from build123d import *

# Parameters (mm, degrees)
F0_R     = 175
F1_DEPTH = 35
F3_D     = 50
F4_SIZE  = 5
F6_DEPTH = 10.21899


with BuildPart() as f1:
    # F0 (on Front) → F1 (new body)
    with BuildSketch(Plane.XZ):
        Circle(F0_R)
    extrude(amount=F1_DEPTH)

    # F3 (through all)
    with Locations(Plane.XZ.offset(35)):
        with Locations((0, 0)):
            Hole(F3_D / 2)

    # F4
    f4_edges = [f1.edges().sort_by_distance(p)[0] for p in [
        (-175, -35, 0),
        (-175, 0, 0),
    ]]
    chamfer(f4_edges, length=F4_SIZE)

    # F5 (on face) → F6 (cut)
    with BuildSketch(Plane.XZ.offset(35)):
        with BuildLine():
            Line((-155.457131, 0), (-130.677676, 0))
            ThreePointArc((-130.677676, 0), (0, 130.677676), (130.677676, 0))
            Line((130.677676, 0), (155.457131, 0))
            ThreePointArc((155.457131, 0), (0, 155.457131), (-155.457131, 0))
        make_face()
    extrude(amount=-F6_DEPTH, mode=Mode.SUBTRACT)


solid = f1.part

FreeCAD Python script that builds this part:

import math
import FreeCAD as App
import Part
import Sketcher

V = App.Vector


def edges_at(feature, points):
    """Names of the edges that pass closest to the given points."""
    edges = feature.Shape.Edges
    near = lambda p: min(range(len(edges)), key=lambda i: edges[i].distToShape(Part.Vertex(*p))[0])
    return sorted({f"Edge{near(p) + 1}" for p in points})

doc = App.newDocument("Part")
body = doc.addObject("PartDesign::Body", "Body")

# Sketch on XZ plane
sketch1 = doc.addObject("Sketcher::SketchObject", "Sketch")
body.addObject(sketch1)
sketch1.AttachmentSupport = (doc.XZ_Plane, [""])
sketch1.MapMode = "FlatFace"
sketch1.addGeometry(Part.Circle(V(0, 0, 0), V(0, 0, 1), 175), False)
sketch1.addConstraint([
    Sketcher.Constraint("Coincident", 0, 3, -1, 1),
    Sketcher.Constraint("Diameter", 0, 350.0),
])
pad1 = doc.addObject("PartDesign::Pad", "Pad")
body.addObject(pad1)
pad1.Profile = sketch1
pad1.Length = 35

# Sketch on XZ plane
sketch2 = doc.addObject("Sketcher::SketchObject", "Sketch001")
body.addObject(sketch2)
sketch2.AttachmentSupport = (doc.XZ_Plane, [""])
sketch2.MapMode = "FlatFace"
sketch2.AttachmentOffset = App.Placement(V(0, 0, 35), App.Rotation())
sketch2.addGeometry(Part.Circle(V(0, 0, 0), V(0, 0, 1), 25), False)
sketch2.addConstraint([
    Sketcher.Constraint("Coincident", 0, 3, -1, 1),
    Sketcher.Constraint("Diameter", 0, 50.0),
])
doc.recompute()
hole = doc.addObject("PartDesign::Hole", "Hole")
body.addObject(hole)
hole.Profile = sketch2
hole.ThreadType = "None"
hole.Diameter = 50
hole.DepthType = "ThroughAll"
doc.recompute()

chamfer = doc.addObject("PartDesign::Chamfer", "Chamfer")
body.addObject(chamfer)
chamfer.Base = (hole, edges_at(hole, [(-175, -35, 0), (-175, 0, 0)]))
chamfer.Size = 5

# Sketch on XZ plane
sketch3 = doc.addObject("Sketcher::SketchObject", "Sketch002")
body.addObject(sketch3)
sketch3.AttachmentSupport = (doc.XZ_Plane, [""])
sketch3.MapMode = "FlatFace"
sketch3.AttachmentOffset = App.Placement(V(0, 0, 35), App.Rotation())
sketch3.addGeometry([
    Part.LineSegment(V(-155, 0, 0), V(-131, 0, 0)),
    Part.ArcOfCircle(Part.Circle(V(0, 0, 0), V(0, 0, 1), 131), math.radians(0), math.radians(180)),
    Part.LineSegment(V(131, 0, 0), V(155, 0, 0)),
    Part.ArcOfCircle(Part.Circle(V(0, 0, 0), V(0, 0, 1), 155), math.radians(0), math.radians(180)),
], False)
sketch3.addConstraint([
    Sketcher.Constraint("Coincident", 0, 2, 1, 2),
    Sketcher.Constraint("Coincident", 1, 1, 2, 1),
    Sketcher.Constraint("Coincident", 2, 2, 3, 1),
    Sketcher.Constraint("Coincident", 3, 2, 0, 1),
    Sketcher.Constraint("Horizontal", 0),
    Sketcher.Constraint("Horizontal", 2),
    Sketcher.Constraint("Coincident", 1, 3, -1, 1),
    Sketcher.Constraint("Coincident", 3, 3, -1, 1),
    Sketcher.Constraint("PointOnObject", 0, 2, -1),
    Sketcher.Constraint("PointOnObject", 1, 1, -1),
    Sketcher.Constraint("Radius", 3, 155.457131),
    Sketcher.Constraint("Radius", 1, 130.677676),
])
pocket1 = doc.addObject("PartDesign::Pocket", "Pocket")
body.addObject(pocket1)
pocket1.Profile = sketch3
pocket1.Length = 10.21899

doc.recompute()
